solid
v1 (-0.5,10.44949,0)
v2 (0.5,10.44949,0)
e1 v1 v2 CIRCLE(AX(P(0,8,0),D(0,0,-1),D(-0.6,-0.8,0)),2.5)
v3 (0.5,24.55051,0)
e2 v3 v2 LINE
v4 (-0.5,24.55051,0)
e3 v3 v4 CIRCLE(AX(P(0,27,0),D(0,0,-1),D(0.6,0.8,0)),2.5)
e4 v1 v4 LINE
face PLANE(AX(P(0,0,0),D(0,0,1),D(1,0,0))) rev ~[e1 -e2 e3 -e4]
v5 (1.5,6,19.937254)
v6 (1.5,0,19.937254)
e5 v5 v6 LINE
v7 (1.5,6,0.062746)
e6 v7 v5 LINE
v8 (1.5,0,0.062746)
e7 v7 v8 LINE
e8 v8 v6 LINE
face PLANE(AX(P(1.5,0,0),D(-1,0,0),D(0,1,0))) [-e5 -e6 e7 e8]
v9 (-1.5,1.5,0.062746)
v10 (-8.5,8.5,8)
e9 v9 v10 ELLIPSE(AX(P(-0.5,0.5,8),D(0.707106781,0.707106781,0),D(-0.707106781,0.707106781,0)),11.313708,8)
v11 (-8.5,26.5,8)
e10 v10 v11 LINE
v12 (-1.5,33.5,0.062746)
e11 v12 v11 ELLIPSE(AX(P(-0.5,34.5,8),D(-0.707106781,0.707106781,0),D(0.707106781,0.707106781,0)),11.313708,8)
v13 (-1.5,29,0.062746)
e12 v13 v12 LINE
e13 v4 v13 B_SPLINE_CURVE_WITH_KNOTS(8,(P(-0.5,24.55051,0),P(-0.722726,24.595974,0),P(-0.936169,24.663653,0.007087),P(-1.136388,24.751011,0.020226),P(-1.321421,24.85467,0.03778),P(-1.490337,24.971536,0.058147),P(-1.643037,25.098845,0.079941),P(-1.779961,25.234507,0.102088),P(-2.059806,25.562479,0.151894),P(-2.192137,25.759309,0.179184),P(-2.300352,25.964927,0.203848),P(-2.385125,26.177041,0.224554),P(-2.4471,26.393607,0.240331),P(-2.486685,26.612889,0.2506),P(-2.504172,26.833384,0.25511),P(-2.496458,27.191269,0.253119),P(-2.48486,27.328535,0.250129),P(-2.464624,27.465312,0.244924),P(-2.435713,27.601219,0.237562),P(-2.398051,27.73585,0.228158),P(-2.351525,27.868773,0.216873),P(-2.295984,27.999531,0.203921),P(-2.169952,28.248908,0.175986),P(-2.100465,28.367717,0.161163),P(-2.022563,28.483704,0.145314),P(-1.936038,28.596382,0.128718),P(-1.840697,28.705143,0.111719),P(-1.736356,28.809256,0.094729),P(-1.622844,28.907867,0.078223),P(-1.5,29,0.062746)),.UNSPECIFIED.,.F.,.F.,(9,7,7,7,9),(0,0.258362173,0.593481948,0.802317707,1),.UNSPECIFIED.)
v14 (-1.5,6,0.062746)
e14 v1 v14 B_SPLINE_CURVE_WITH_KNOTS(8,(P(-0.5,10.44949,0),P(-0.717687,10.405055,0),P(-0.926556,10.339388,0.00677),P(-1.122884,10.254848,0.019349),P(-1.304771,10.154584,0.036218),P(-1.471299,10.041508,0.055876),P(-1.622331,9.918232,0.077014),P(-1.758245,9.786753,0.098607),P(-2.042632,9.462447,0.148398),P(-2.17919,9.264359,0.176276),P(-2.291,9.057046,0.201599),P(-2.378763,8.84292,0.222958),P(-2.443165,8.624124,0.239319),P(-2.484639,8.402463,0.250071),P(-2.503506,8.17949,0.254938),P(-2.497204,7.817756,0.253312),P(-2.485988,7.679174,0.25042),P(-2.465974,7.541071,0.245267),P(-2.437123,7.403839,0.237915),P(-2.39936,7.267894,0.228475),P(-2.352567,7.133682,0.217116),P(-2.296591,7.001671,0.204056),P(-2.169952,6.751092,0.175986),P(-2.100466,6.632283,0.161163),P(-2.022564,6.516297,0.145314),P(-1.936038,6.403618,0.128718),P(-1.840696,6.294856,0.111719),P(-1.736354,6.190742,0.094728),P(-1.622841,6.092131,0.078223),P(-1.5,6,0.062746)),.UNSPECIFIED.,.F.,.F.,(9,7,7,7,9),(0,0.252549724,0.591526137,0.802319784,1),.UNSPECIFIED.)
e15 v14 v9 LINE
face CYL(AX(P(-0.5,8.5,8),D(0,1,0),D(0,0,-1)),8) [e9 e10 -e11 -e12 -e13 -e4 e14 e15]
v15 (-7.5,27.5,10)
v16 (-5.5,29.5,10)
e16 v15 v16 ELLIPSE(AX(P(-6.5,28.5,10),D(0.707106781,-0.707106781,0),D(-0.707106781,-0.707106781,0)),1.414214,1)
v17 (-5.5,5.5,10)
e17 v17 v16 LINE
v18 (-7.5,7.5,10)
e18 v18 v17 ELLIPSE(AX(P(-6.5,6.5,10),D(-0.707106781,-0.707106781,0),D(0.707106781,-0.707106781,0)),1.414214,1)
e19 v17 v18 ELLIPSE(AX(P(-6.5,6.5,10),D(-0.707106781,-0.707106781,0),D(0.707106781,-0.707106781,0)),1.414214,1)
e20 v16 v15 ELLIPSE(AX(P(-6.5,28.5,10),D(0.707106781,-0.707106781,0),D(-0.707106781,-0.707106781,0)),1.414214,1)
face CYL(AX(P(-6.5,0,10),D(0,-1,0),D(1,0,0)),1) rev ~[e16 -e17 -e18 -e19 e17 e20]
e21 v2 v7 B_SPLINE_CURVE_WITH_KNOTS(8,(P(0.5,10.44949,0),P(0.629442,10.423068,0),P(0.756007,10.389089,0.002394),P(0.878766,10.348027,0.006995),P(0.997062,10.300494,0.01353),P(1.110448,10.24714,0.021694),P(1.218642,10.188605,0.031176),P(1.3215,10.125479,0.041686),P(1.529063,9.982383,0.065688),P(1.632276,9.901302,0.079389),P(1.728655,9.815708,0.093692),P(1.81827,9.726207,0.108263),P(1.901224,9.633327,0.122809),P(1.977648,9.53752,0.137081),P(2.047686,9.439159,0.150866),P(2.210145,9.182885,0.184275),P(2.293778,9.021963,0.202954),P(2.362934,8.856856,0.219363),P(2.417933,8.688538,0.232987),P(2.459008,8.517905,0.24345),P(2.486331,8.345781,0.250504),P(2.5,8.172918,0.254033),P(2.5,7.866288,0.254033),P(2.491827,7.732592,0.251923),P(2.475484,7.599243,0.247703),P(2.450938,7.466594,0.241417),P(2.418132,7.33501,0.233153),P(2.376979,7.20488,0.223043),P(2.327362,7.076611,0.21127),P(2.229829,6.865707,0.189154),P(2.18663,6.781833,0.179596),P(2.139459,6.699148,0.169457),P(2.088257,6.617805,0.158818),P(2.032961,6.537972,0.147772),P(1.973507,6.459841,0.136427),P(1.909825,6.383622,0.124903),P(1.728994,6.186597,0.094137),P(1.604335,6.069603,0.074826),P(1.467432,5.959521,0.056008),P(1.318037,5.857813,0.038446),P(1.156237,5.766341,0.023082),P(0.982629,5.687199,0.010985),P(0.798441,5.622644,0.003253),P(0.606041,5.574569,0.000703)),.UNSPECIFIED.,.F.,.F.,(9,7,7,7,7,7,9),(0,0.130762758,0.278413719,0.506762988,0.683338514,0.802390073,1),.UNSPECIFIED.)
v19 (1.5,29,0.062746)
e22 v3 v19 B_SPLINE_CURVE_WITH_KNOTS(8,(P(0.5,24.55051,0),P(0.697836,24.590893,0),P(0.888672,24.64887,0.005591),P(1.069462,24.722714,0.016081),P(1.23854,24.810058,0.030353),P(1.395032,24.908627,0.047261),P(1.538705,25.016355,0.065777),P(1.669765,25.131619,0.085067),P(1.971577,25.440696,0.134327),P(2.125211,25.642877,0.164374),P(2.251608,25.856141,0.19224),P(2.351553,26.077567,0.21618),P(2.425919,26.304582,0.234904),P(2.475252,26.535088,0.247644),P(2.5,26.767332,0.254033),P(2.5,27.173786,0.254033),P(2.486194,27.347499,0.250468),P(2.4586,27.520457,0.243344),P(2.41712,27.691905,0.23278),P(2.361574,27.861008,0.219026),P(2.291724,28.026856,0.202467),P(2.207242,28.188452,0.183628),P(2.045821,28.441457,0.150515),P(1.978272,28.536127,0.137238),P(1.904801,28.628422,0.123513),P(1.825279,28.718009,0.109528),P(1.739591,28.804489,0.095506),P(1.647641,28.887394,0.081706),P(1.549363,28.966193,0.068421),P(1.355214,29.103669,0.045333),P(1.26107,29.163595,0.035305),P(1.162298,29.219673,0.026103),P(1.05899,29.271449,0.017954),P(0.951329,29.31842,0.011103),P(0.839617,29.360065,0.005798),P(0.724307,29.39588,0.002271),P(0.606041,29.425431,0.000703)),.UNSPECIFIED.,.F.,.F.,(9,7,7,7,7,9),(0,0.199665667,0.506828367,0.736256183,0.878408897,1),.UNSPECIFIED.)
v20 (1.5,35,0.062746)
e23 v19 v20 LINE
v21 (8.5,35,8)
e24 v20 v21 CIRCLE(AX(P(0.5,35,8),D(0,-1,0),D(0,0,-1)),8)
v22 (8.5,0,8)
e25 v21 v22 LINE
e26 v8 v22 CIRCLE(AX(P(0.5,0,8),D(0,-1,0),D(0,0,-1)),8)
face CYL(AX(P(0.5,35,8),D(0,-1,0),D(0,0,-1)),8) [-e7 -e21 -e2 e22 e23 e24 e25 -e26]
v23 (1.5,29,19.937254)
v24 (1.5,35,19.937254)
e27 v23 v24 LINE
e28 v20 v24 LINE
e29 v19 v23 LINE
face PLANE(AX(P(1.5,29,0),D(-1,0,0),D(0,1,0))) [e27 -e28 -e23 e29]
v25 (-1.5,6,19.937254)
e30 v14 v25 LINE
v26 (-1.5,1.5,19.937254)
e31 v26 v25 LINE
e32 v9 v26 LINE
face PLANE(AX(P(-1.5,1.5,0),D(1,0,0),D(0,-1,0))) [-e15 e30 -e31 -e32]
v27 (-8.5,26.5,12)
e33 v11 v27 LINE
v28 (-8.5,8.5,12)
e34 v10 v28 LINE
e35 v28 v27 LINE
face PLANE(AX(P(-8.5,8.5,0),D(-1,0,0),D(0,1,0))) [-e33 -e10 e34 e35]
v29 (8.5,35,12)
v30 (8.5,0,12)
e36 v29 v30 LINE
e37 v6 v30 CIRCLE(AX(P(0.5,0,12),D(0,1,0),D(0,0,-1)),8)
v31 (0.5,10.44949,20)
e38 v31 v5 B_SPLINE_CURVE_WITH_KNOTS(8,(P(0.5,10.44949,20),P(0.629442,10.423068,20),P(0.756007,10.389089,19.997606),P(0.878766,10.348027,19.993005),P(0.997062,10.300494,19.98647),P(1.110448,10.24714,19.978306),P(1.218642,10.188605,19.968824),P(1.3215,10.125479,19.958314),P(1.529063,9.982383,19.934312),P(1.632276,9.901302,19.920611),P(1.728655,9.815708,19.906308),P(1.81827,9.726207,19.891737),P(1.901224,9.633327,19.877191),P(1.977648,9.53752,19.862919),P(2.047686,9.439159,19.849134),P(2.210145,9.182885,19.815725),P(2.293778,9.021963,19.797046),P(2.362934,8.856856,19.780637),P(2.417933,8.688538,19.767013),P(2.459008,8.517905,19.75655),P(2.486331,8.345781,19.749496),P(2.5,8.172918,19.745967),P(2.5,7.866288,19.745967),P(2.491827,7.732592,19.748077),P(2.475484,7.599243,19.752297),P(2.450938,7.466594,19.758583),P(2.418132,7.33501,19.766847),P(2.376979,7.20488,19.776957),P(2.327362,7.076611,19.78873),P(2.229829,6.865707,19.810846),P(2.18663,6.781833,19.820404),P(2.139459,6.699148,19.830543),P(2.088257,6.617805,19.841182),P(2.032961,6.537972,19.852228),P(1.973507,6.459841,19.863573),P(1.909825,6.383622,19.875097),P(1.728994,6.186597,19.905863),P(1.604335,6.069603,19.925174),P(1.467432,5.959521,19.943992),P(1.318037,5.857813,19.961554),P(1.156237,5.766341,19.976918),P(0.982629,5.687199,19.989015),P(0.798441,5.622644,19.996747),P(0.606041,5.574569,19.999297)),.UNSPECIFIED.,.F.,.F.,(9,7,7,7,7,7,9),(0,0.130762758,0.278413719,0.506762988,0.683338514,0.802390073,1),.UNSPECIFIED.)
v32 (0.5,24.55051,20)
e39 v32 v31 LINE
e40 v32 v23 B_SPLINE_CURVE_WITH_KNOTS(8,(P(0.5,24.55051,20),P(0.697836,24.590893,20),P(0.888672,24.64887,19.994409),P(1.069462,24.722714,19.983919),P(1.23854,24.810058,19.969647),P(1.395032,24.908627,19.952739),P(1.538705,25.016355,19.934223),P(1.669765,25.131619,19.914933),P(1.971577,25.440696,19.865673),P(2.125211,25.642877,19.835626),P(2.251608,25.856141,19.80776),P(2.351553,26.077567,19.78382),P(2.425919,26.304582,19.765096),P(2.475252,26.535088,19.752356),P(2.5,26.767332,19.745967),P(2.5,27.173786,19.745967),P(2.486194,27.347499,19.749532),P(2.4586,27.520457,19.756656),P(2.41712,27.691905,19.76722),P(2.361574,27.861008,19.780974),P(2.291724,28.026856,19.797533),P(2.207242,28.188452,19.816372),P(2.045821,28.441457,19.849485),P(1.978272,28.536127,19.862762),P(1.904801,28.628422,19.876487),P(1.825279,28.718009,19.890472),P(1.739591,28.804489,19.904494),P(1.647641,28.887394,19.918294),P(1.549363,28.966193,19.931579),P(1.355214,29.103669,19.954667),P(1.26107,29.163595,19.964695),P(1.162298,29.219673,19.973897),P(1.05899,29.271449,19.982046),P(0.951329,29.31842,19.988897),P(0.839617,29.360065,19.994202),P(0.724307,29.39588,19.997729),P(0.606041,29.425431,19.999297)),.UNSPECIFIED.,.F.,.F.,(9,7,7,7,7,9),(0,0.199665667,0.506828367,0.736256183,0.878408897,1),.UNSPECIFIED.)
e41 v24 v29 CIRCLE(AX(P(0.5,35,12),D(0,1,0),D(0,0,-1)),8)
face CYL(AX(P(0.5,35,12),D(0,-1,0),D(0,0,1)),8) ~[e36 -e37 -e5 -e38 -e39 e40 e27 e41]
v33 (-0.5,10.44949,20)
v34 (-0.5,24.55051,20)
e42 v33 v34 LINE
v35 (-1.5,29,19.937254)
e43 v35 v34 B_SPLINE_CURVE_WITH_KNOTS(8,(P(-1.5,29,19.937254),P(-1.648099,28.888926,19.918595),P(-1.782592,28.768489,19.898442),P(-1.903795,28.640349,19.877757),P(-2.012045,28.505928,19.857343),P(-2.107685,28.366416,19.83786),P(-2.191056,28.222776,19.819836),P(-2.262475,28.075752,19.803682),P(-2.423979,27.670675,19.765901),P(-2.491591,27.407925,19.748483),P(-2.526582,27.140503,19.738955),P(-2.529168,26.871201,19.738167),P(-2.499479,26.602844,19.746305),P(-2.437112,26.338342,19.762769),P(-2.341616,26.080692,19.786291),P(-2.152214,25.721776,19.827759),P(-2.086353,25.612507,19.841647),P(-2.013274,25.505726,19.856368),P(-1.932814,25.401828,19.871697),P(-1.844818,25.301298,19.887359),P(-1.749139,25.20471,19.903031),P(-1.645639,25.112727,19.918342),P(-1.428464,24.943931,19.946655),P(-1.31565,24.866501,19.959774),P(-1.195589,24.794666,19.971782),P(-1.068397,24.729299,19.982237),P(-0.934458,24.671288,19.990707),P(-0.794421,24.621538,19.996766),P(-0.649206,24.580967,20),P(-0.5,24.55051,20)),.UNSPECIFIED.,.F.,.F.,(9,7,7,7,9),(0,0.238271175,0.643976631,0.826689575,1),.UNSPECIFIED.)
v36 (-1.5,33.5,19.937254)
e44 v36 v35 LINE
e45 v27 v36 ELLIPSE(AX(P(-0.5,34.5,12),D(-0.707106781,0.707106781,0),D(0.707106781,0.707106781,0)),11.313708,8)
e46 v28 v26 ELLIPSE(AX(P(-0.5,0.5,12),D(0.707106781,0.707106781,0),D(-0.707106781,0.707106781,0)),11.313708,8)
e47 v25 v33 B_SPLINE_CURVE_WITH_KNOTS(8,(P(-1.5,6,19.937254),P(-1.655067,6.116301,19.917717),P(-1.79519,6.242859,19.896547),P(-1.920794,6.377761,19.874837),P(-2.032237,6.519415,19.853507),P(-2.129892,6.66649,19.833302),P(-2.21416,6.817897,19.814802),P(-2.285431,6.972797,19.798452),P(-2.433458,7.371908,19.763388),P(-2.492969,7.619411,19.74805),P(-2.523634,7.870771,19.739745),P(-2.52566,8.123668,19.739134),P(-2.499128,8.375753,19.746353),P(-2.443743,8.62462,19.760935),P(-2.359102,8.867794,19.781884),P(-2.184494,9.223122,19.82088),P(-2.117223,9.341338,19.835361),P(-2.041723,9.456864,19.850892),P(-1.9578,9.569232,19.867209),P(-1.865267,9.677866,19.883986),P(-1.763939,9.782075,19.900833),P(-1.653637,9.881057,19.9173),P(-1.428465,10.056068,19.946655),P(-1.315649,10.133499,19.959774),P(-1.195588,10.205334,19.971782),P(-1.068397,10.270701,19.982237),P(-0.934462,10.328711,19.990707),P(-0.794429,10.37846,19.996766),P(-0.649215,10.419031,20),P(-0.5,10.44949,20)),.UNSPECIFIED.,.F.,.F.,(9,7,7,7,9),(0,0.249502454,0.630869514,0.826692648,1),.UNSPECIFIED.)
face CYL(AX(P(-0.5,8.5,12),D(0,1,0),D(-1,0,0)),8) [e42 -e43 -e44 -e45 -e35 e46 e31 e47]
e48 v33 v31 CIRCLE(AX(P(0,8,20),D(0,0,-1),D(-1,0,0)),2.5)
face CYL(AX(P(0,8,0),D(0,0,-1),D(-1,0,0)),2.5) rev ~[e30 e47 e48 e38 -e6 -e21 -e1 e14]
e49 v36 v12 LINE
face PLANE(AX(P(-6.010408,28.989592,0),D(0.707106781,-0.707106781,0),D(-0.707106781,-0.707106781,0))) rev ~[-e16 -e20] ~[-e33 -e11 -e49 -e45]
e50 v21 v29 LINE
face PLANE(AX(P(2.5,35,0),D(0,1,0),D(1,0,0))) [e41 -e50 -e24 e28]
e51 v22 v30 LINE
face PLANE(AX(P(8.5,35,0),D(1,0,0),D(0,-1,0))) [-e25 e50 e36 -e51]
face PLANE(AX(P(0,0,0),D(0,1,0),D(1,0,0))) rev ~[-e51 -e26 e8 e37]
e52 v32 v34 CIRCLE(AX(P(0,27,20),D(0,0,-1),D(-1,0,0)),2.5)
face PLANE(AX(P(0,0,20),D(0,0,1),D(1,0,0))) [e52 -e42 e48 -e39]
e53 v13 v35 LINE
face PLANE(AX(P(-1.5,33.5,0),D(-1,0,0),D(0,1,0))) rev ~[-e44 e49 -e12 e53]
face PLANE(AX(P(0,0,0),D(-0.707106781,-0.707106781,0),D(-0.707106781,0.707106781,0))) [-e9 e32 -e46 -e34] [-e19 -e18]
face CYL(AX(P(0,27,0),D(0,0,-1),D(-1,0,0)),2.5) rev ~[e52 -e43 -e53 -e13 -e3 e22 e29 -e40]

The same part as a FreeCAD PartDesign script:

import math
import FreeCAD as App
import Part
import Sketcher


def edges_at(feature, points):
    """Names of the edges that pass closest to the given points."""
    edges = feature.Shape.Edges
    near = lambda p: min(range(len(edges)), key=lambda i: edges[i].distToShape(Part.Vertex(*p))[0])
    return sorted({f"Edge{near(p) + 1}" for p in points})


def add_polygon(sketch, points):
    """Adds a closed chain of lines whose ends are joined by coincident constraints."""
    first, n = sketch.GeometryCount, len(points)
    for a, b in zip(points, points[1:] + points[:1]):
        sketch.addGeometry(Part.LineSegment(App.Vector(*a, 0), App.Vector(*b, 0)), False)
    for i in range(n):
        sketch.addConstraint(Sketcher.Constraint("Coincident", first + i, 2, first + (i + 1) % n, 1))

doc = App.newDocument("Part")
body = doc.addObject("PartDesign::Body", "Body")

# Sketch on XY plane
sketch1 = body.newObject("Sketcher::SketchObject", "Sketch")
sketch1.AttachmentSupport = (doc.getObject("XY_Plane"), [""])
sketch1.MapMode = "FlatFace"
add_polygon(sketch1, [(0, 0), (8, 0), (8, 35), (0, 35), (-8, 26), (-8, 8)])  # lines 0-5
sketch1.addConstraint([
    Sketcher.Constraint("Horizontal", 0),
    Sketcher.Constraint("Vertical", 1),
    Sketcher.Constraint("Horizontal", 2),
    Sketcher.Constraint("Vertical", 4),
    Sketcher.Constraint("Coincident", 5, 2, -1, 1),
    Sketcher.Constraint("PointOnObject", 2, 2, -2),
    Sketcher.Constraint("Perpendicular", 3, 5),
    Sketcher.Constraint("Equal", 3, 5),
    Sketcher.Constraint("DistanceY", 1, 1, 1, 2, 35.0),
    Sketcher.Constraint("DistanceX", 3, 2, 1, 2, 17.0),
    Sketcher.Constraint("DistanceY", 4, 2, 4, 1, 18.0),
])
pad1 = body.newObject("PartDesign::Pad", "Pad")
pad1.Profile = sketch1
pad1.Length = 20

# Sketch on XY plane
sketch2 = body.newObject("Sketcher::SketchObject", "Sketch001")
sketch2.AttachmentSupport = (doc.getObject("XY_Plane"), [""])
sketch2.MapMode = "FlatFace"
sketch2.addGeometry([
    Part.LineSegment(App.Vector(1.5, 0, 0), App.Vector(-1.5, 0, 0)),  # 0
    Part.LineSegment(App.Vector(-1.5, 0, 0), App.Vector(-1.5, 6, 0)),  # 1
    Part.ArcOfCircle(Part.Circle(App.Vector(0, 8, 0), App.Vector(0, 0, 1), 2.5), math.radians(-53), math.radians(233)),  # 2
    Part.LineSegment(App.Vector(1.5, 6, 0), App.Vector(1.5, 0, 0)),  # 3
    Part.LineSegment(App.Vector(-1.5, 35, 0), App.Vector(1.5, 35, 0)),  # 4
    Part.LineSegment(App.Vector(1.5, 35, 0), App.Vector(1.5, 29, 0)),  # 5
    Part.ArcOfCircle(Part.Circle(App.Vector(0, 27, 0), App.Vector(0, 0, 1), 2.5), math.radians(127), math.radians(413)),  # 6
    Part.LineSegment(App.Vector(-1.5, 29, 0), App.Vector(-1.5, 35, 0)),  # 7
], False)
sketch2.addConstraint([
    Sketcher.Constraint("Coincident", 0, 2, 1, 1),
    Sketcher.Constraint("Coincident", 1, 2, 2, 2),
    Sketcher.Constraint("Coincident", 2, 1, 3, 1),
    Sketcher.Constraint("Coincident", 3, 2, 0, 1),
    Sketcher.Constraint("Coincident", 4, 2, 5, 1),
    Sketcher.Constraint("Coincident", 5, 2, 6, 2),
    Sketcher.Constraint("Coincident", 6, 1, 7, 1),
    Sketcher.Constraint("Coincident", 7, 2, 4, 1),
    Sketcher.Constraint("Horizontal", 0),
    Sketcher.Constraint("Vertical", 1),
    Sketcher.Constraint("Vertical", 3),
    Sketcher.Constraint("Horizontal", 4),
    Sketcher.Constraint("Vertical", 5),
    Sketcher.Constraint("Vertical", 7),
    Sketcher.Constraint("Equal", 2, 6),
    Sketcher.Constraint("Symmetric", 0, 2, 3, 2, -1, 1),
    Sketcher.Constraint("Symmetric", 5, 2, 6, 1, -2),
    Sketcher.Constraint("PointOnObject", 2, 3, -2),
    Sketcher.Constraint("Vertical", 3, 2, 4, 2),
    Sketcher.Constraint("Equal", 3, 5),
    Sketcher.Constraint("Radius", 2, 2.5),
    Sketcher.Constraint("DistanceX", 0, 2, 0, 1, 3.0),
    Sketcher.Constraint("DistanceY", -1, 1, 2, 3, 8.0),
    Sketcher.Constraint("DistanceY", -1, 1, 6, 3, 27.0),
])
pocket1 = body.newObject("PartDesign::Pocket", "Pocket")
pocket1.Profile = sketch2
pocket1.Type = "ThroughAll"
pocket1.Reversed = True
doc.recompute()

fillet = body.newObject("PartDesign::Fillet", "Fillet")
fillet.Base = (pocket1, edges_at(pocket1, [
    (8.5, 17.5, 0),
    (8.5, 17.5, 20),
    (-8.5, 17.5, 0),
    (-8.5, 17.5, 20),
]))
fillet.Radius = 8

# Sketch on XZ plane
sketch3 = body.newObject("Sketcher::SketchObject", "Sketch002")
sketch3.AttachmentSupport = (doc.getObject("XZ_Plane"), [""])
sketch3.MapMode = "FlatFace"
sketch3.addGeometry(Part.Circle(App.Vector(-6.5, 10, 0), App.Vector(0, 0, 1), 1), False)
sketch3.addConstraint([
    Sketcher.Constraint("Diameter", 0, 2.0),
    Sketcher.Constraint("DistanceY", -1, 1, 0, 3, 10.0),
    Sketcher.Constraint("DistanceX", 0, 3, -1, 1, 6.5),
])
pocket2 = body.newObject("PartDesign::Pocket", "Pocket001")
pocket2.Profile = sketch3
pocket2.Type = "ThroughAll"

doc.recompute()
